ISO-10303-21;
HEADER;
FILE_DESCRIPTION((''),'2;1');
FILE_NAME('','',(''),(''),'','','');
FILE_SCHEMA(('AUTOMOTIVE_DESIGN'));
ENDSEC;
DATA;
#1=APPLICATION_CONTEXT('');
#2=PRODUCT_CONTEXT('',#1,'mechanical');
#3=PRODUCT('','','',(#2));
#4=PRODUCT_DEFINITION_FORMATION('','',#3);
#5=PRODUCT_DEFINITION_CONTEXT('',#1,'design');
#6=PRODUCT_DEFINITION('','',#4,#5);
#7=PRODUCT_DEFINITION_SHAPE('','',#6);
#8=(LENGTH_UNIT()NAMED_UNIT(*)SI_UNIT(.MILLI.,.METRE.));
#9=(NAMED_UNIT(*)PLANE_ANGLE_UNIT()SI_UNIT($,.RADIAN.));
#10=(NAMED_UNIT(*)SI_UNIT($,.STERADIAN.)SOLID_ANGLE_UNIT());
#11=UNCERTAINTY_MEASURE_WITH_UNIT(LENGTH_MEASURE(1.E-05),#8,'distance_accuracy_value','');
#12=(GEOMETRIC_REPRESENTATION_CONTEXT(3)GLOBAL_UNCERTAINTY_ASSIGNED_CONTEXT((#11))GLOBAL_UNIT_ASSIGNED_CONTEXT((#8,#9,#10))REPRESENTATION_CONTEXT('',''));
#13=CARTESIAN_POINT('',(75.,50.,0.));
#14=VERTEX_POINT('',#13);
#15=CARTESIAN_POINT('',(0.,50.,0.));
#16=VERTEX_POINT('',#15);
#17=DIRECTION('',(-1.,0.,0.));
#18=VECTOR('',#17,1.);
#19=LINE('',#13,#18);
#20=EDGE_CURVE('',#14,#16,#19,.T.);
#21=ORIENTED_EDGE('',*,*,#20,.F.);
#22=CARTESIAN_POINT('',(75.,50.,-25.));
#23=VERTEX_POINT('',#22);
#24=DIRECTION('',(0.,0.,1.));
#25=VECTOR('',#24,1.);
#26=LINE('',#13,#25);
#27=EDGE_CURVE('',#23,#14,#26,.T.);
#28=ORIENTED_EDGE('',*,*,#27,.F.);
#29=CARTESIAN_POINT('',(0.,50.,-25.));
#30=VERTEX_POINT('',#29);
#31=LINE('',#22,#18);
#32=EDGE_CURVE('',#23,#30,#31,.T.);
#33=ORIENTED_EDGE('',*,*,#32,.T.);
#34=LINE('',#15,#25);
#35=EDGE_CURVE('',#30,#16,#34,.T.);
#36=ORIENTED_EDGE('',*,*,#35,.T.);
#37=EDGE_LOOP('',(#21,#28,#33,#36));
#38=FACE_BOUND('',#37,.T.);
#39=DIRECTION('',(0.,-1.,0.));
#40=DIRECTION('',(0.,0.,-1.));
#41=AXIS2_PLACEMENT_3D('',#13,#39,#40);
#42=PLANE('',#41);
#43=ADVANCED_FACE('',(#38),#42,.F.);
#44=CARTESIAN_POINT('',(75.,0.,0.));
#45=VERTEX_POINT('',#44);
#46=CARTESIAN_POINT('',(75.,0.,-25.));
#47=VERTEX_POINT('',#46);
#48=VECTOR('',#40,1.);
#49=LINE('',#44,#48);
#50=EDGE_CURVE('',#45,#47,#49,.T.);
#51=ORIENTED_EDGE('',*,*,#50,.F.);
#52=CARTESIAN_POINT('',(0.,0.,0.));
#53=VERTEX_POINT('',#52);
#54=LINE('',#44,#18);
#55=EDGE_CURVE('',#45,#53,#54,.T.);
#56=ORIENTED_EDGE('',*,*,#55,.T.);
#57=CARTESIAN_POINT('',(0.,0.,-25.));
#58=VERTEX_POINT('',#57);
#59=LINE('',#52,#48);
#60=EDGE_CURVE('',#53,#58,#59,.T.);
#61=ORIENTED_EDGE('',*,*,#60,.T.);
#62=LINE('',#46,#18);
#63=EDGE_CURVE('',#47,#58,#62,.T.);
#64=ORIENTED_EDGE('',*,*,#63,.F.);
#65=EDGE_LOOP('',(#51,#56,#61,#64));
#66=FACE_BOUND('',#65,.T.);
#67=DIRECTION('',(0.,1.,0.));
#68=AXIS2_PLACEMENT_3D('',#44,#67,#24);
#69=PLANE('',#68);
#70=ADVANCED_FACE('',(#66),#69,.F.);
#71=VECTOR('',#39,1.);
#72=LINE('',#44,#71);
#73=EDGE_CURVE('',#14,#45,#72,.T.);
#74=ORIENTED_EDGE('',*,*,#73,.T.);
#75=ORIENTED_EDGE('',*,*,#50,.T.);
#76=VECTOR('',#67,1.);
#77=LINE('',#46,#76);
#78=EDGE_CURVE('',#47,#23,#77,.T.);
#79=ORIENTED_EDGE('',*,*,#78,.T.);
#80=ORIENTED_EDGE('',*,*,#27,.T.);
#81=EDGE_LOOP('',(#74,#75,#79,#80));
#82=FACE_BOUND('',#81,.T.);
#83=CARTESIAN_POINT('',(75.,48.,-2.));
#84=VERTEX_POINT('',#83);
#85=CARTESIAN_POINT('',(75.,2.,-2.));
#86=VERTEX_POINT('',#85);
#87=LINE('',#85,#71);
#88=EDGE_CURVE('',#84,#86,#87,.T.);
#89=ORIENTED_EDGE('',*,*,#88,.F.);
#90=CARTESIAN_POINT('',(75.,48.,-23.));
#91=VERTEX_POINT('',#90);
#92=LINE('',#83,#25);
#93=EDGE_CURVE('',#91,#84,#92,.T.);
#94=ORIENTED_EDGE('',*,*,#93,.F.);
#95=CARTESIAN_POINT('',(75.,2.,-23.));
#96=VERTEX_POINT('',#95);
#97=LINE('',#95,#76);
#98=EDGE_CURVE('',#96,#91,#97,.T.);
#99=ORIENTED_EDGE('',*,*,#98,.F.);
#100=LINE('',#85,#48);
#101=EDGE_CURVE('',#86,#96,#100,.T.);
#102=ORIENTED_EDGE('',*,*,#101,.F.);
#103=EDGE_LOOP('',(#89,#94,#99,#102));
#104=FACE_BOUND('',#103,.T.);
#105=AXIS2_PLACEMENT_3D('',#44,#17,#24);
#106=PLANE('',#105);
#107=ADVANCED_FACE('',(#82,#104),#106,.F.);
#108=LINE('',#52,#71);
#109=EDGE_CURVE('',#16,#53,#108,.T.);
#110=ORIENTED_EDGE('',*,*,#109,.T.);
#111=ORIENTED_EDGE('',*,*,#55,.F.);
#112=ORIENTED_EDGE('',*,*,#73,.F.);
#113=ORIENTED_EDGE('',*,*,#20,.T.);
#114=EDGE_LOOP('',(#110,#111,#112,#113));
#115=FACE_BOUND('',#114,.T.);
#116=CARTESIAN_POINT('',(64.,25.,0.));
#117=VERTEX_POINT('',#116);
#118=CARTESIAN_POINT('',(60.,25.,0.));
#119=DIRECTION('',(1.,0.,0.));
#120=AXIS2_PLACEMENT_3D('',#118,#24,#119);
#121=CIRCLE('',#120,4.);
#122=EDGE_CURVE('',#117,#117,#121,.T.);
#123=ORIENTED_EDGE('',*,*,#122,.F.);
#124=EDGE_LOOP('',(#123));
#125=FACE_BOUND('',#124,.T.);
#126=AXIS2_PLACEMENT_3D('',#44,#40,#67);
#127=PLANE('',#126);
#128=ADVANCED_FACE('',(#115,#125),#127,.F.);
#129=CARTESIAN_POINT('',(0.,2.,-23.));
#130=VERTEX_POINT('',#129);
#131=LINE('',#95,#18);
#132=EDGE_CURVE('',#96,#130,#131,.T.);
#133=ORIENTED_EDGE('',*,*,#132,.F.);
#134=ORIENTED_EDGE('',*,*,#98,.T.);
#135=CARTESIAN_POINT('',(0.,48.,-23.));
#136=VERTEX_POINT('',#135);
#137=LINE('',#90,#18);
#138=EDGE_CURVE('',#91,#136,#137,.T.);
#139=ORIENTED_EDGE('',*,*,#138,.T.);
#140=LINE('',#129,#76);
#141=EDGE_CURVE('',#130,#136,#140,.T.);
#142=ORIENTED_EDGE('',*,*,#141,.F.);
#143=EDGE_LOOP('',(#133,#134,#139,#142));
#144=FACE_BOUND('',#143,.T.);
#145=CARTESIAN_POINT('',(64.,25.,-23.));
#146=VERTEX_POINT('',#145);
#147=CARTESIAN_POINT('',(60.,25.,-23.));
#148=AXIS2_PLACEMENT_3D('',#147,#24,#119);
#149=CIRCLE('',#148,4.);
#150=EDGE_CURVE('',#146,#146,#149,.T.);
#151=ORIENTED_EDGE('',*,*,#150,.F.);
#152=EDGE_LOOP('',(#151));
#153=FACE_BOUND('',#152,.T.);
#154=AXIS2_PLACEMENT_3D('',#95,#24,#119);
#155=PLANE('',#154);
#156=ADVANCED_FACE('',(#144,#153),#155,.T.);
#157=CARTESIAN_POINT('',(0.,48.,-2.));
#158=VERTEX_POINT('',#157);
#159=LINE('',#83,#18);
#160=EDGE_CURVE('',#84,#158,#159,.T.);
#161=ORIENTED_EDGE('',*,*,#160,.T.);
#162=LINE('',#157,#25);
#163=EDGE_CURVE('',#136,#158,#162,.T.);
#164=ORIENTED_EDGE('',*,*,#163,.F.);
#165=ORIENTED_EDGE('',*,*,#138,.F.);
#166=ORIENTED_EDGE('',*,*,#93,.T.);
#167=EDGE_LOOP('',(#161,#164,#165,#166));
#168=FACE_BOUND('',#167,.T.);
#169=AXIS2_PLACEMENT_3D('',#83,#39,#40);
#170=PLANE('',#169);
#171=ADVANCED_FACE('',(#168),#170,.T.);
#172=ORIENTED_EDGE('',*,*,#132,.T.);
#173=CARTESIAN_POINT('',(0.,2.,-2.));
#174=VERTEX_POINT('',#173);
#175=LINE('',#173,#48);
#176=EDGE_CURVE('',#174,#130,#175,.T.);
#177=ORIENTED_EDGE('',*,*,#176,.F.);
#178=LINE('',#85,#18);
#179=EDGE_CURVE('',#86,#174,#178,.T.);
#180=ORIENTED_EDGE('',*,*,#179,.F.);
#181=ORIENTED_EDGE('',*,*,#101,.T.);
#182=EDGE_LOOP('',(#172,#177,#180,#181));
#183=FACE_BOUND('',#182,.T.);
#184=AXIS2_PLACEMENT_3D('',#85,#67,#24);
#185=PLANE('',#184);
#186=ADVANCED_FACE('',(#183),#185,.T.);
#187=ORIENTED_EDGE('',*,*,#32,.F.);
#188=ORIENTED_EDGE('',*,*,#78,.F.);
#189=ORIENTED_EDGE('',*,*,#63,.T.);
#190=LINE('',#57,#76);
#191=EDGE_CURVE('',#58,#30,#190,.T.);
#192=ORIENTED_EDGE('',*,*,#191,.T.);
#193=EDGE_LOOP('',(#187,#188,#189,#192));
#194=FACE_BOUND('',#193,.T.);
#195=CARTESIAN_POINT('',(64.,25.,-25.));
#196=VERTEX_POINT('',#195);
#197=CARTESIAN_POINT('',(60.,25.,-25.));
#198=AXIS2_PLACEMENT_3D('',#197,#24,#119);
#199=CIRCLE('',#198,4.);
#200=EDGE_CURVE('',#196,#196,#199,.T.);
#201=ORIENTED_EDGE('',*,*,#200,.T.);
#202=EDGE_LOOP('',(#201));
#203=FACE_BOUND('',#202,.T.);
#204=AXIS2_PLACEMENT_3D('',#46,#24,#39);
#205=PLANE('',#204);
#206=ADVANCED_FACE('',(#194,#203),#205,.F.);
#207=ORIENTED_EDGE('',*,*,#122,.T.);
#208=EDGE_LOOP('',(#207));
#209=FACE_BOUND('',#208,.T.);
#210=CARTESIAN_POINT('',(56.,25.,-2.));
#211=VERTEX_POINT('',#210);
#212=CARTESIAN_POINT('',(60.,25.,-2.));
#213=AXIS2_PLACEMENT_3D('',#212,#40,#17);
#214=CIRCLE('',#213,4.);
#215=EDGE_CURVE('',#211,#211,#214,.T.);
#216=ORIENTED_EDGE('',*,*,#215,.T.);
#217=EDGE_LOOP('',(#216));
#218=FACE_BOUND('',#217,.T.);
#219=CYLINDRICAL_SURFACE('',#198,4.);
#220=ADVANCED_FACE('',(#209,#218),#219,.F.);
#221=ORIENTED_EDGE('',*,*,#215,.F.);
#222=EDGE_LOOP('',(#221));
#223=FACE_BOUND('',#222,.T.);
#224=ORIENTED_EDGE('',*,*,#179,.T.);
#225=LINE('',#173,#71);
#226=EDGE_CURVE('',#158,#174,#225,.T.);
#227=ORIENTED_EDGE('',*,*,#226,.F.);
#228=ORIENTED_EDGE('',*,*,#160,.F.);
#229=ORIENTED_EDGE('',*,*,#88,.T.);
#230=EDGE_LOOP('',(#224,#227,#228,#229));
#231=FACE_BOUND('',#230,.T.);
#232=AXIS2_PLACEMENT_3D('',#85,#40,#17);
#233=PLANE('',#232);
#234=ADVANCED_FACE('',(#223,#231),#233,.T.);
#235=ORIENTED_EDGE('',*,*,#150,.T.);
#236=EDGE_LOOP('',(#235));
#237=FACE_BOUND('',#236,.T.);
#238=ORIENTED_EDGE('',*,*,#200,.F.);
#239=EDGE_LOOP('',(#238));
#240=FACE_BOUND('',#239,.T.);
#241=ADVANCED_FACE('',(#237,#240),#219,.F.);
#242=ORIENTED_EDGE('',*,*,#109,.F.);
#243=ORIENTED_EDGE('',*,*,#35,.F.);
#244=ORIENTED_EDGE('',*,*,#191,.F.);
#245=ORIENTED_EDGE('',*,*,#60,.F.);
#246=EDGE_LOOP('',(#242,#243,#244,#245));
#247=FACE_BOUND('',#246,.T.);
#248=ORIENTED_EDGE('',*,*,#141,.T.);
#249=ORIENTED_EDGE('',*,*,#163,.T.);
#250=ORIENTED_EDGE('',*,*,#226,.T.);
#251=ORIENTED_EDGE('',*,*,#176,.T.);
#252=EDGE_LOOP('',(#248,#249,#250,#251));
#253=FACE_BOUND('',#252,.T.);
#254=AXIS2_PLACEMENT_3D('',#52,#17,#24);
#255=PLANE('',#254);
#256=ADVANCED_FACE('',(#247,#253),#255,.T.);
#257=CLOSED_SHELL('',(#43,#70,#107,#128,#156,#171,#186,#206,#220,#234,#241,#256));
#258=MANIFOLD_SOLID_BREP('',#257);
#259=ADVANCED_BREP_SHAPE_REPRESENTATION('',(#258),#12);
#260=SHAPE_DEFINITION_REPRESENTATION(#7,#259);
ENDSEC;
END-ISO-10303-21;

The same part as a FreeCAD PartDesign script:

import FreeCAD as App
import Part
import Sketcher
from FreeCAD import Vector

doc = App.newDocument("Part")
body = doc.addObject("PartDesign::Body", "Body")

# Sketch on YZ plane
sketch1 = body.newObject("Sketcher::SketchObject", "Sketch")
sketch1.AttachmentSupport = (doc.getObject("YZ_Plane"), [""])
sketch1.MapMode = "FlatFace"
sketch1.addGeometry(Part.LineSegment(Vector(50, 0, 0), Vector(0, 0, 0)), False)
sketch1.addGeometry(Part.LineSegment(Vector(0, 0, 0), Vector(0, -25, 0)), False)
sketch1.addGeometry(Part.LineSegment(Vector(0, -25, 0), Vector(50, -25, 0)), False)
sketch1.addGeometry(Part.LineSegment(Vector(50, -25, 0), Vector(50, 0, 0)), False)
sketch1.addGeometry(Part.LineSegment(Vector(2, -23, 0), Vector(2, -2, 0)), False)
sketch1.addGeometry(Part.LineSegment(Vector(2, -2, 0), Vector(48, -2, 0)), False)
sketch1.addGeometry(Part.LineSegment(Vector(48, -2, 0), Vector(48, -23, 0)), False)
sketch1.addGeometry(Part.LineSegment(Vector(48, -23, 0), Vector(2, -23, 0)), False)
sketch1.addConstraint(Sketcher.Constraint("Coincident", 0, 2, 1, 1))
sketch1.addConstraint(Sketcher.Constraint("Coincident", 1, 2, 2, 1))
sketch1.addConstraint(Sketcher.Constraint("Coincident", 2, 2, 3, 1))
sketch1.addConstraint(Sketcher.Constraint("Coincident", 3, 2, 0, 1))
sketch1.addConstraint(Sketcher.Constraint("Coincident", 4, 2, 5, 1))
sketch1.addConstraint(Sketcher.Constraint("Coincident", 5, 2, 6, 1))
sketch1.addConstraint(Sketcher.Constraint("Coincident", 6, 2, 7, 1))
sketch1.addConstraint(Sketcher.Constraint("Coincident", 7, 2, 4, 1))
sketch1.addConstraint(Sketcher.Constraint("Horizontal", 0))
sketch1.addConstraint(Sketcher.Constraint("Vertical", 1))
sketch1.addConstraint(Sketcher.Constraint("Horizontal", 2))
sketch1.addConstraint(Sketcher.Constraint("Vertical", 3))
sketch1.addConstraint(Sketcher.Constraint("Vertical", 4))
sketch1.addConstraint(Sketcher.Constraint("Horizontal", 5))
sketch1.addConstraint(Sketcher.Constraint("Vertical", 6))
sketch1.addConstraint(Sketcher.Constraint("Horizontal", 7))
sketch1.addConstraint(Sketcher.Constraint("Coincident", 0, 2, -1, 1))
sketch1.addConstraint(Sketcher.Constraint("DistanceX", 0, 2, 0, 1, 50.0))
sketch1.addConstraint(Sketcher.Constraint("DistanceX", 5, 1, 5, 2, 46.0))
sketch1.addConstraint(Sketcher.Constraint("DistanceY", 1, 2, 1, 1, 25.0))
sketch1.addConstraint(Sketcher.Constraint("DistanceY", 4, 1, 4, 2, 21.0))
sketch1.addConstraint(Sketcher.Constraint("DistanceX", -1, 1, 4, 2, 2.0))
sketch1.addConstraint(Sketcher.Constraint("DistanceY", 4, 2, -1, 1, 2.0))
pad1 = body.newObject("PartDesign::Pad", "Pad")
pad1.Profile = sketch1
pad1.Length = 75

# Sketch on XY plane
sketch2 = body.newObject("Sketcher::SketchObject", "Sketch001")
sketch2.AttachmentSupport = (doc.getObject("XY_Plane"), [""])
sketch2.MapMode = "FlatFace"
sketch2.addGeometry(Part.Circle(Vector(60, 25, 0), Vector(0, 0, 1), 4), False)
sketch2.addConstraint(Sketcher.Constraint("Diameter", 0, 8.0))
sketch2.addConstraint(Sketcher.Constraint("DistanceX", -1, 1, 0, 3, 60.0))
sketch2.addConstraint(Sketcher.Constraint("DistanceY", -1, 1, 0, 3, 25.0))
pocket1 = body.newObject("PartDesign::Pocket", "Pocket")
pocket1.Profile = sketch2
pocket1.Type = "ThroughAll"

doc.recompute()
